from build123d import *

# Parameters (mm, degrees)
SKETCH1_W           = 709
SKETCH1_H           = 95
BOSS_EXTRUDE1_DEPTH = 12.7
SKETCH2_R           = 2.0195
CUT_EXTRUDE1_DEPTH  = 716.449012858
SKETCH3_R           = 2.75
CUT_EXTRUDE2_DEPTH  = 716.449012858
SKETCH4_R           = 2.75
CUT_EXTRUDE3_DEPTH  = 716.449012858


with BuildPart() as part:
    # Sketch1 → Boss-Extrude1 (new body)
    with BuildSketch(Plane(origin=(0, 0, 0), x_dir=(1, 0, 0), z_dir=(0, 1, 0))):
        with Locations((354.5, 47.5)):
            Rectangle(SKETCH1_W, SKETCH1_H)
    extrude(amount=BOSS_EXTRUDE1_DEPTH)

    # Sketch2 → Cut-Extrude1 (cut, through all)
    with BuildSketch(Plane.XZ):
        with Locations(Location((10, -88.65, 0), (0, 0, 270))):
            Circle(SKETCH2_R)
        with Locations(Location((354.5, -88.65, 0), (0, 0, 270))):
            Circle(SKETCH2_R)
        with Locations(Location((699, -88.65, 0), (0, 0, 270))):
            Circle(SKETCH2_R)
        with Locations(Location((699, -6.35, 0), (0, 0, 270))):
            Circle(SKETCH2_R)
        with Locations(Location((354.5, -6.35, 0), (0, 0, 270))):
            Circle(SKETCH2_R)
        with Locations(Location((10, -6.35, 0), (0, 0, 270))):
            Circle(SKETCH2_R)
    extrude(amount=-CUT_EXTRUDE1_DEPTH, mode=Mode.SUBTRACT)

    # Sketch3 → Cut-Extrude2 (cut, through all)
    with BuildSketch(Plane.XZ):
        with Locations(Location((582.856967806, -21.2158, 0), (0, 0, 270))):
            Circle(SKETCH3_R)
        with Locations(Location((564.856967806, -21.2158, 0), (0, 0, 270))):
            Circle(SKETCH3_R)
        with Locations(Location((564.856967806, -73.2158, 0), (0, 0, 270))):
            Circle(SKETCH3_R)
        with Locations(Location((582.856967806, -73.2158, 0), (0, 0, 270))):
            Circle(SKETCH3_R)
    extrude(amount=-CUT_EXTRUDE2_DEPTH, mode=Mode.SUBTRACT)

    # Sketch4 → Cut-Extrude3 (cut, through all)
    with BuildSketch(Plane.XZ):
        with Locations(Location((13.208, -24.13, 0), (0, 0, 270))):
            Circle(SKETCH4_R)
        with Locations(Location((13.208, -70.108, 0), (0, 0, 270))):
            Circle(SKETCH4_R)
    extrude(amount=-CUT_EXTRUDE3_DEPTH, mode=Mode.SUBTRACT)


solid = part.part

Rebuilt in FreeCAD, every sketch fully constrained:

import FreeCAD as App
import Part
import Sketcher

V = App.Vector

doc = App.newDocument("Part")
body = doc.addObject("PartDesign::Body", "Body")

sketch1 = body.newObject("Sketcher::SketchObject", "Sketch")
sketch1.AttachmentSupport = (doc.getObject("XZ_Plane"), [""])
sketch1.MapMode = "FlatFace"
sketch1.addGeometry([
    Part.LineSegment(V(0, -95, 0), V(0, 0, 0)),
    Part.LineSegment(V(0, 0, 0), V(709, 0, 0)),
    Part.LineSegment(V(709, 0, 0), V(709, -95, 0)),
    Part.LineSegment(V(709, -95, 0), V(0, -95, 0)),
], False)
sketch1.addConstraint([
    Sketcher.Constraint("Coincident", 0, 2, 1, 1),
    Sketcher.Constraint("Coincident", 1, 2, 2, 1),
    Sketcher.Constraint("Coincident", 2, 2, 3, 1),
    Sketcher.Constraint("Coincident", 3, 2, 0, 1),
    Sketcher.Constraint("Vertical", 0),
    Sketcher.Constraint("Horizontal", 1),
    Sketcher.Constraint("Vertical", 2),
    Sketcher.Constraint("Horizontal", 3),
    Sketcher.Constraint("Coincident", 0, 2, -1, 1),
    Sketcher.Constraint("DistanceX", 1, 1, 1, 2, 709.0),
    Sketcher.Constraint("DistanceY", 0, 1, 0, 2, 95.0),
])
pad1 = body.newObject("PartDesign::Pad", "Pad")
pad1.Profile = sketch1
pad1.Length = 12.7
pad1.Reversed = True

sketch2 = body.newObject("Sketcher::SketchObject", "Sketch001")
sketch2.AttachmentSupport = (doc.getObject("XZ_Plane"), [""])
sketch2.MapMode = "FlatFace"
sketch2.addGeometry([
    Part.Circle(V(10, -88.7, 0), V(0, 0, 1), 2),
    Part.Circle(V(354.5, -88.7, 0), V(0, 0, 1), 2),
    Part.Circle(V(699, -88.7, 0), V(0, 0, 1), 2),
    Part.Circle(V(699, -6.3, 0), V(0, 0, 1), 2),
    Part.Circle(V(354.5, -6.3, 0), V(0, 0, 1), 2),
    Part.Circle(V(10, -6.3, 0), V(0, 0, 1), 2),
], False)
sketch2.addConstraint([
    Sketcher.Constraint("Equal", 0, 1),
    Sketcher.Constraint("Equal", 1, 2),
    Sketcher.Constraint("Equal", 2, 3),
    Sketcher.Constraint("Equal", 3, 4),
    Sketcher.Constraint("Equal", 4, 5),
    Sketcher.Constraint("Horizontal", 0, 3, 1, 3),
    Sketcher.Constraint("Horizontal", 1, 3, 2, 3),
    Sketcher.Constraint("Horizontal", 3, 3, 4, 3),
    Sketcher.Constraint("Horizontal", 4, 3, 5, 3),
    Sketcher.Constraint("Vertical", 2, 3, 3, 3),
    Sketcher.Constraint("Vertical", 1, 3, 4, 3),
    Sketcher.Constraint("Vertical", 0, 3, 5, 3),
    Sketcher.Constraint("Diameter", 0, 4.039),
    Sketcher.Constraint("DistanceX", -1, 1, 0, 3, 10.0),
    Sketcher.Constraint("DistanceX", -1, 1, 2, 3, 699.0),
    Sketcher.Constraint("DistanceX", -1, 1, 1, 3, 354.5),
    Sketcher.Constraint("DistanceY", 2, 3, 3, 3, 82.3),
    Sketcher.Constraint("DistanceY", 0, 3, -1, 1, 88.65),
])
pocket1 = body.newObject("PartDesign::Pocket", "Pocket")
pocket1.Profile = sketch2
pocket1.Type = "ThroughAll"

sketch3 = body.newObject("Sketcher::SketchObject", "Sketch002")
sketch3.AttachmentSupport = (doc.getObject("XZ_Plane"), [""])
sketch3.MapMode = "FlatFace"
sketch3.addGeometry([
    Part.Circle(V(582.9, -21.2, 0), V(0, 0, 1), 2.8),
    Part.Circle(V(564.9, -21.2, 0), V(0, 0, 1), 2.8),
    Part.Circle(V(564.9, -73.2, 0), V(0, 0, 1), 2.8),
    Part.Circle(V(582.9, -73.2, 0), V(0, 0, 1), 2.8),
], False)
sketch3.addConstraint([
    Sketcher.Constraint("Equal", 0, 1),
    Sketcher.Constraint("Equal", 1, 2),
    Sketcher.Constraint("Equal", 2, 3),
    Sketcher.Constraint("Horizontal", 0, 3, 1, 3),
    Sketcher.Constraint("Horizontal", 2, 3, 3, 3),
    Sketcher.Constraint("Vertical", 1, 3, 2, 3),
    Sketcher.Constraint("Vertical", 0, 3, 3, 3),
    Sketcher.Constraint("Diameter", 0, 5.5),
    Sketcher.Constraint("DistanceX", 1, 3, 0, 3, 18.0),
    Sketcher.Constraint("DistanceY", 2, 3, 1, 3, 52.0),
    Sketcher.Constraint("DistanceY", 0, 3, -1, 1, 21.2158),
    Sketcher.Constraint("DistanceX", -1, 1, 0, 3, 582.856968),
])
pocket2 = body.newObject("PartDesign::Pocket", "Pocket001")
pocket2.Profile = sketch3
pocket2.Type = "ThroughAll"

sketch4 = body.newObject("Sketcher::SketchObject", "Sketch003")
sketch4.AttachmentSupport = (doc.getObject("XZ_Plane"), [""])
sketch4.MapMode = "FlatFace"
sketch4.addGeometry([
    Part.Circle(V(13.2, -24.1, 0), V(0, 0, 1), 2.8),
    Part.Circle(V(13.2, -70.1, 0), V(0, 0, 1), 2.8),
], False)
sketch4.addConstraint([
    Sketcher.Constraint("Equal", 0, 1),
    Sketcher.Constraint("Vertical", 0, 3, 1, 3),
    Sketcher.Constraint("Diameter", 0, 5.5),
    Sketcher.Constraint("DistanceY", 0, 3, -1, 1, 24.13),
    Sketcher.Constraint("DistanceX", -1, 1, 0, 3, 13.208),
    Sketcher.Constraint("DistanceY", 1, 3, -1, 1, 70.108),
])
pocket3 = body.newObject("PartDesign::Pocket", "Pocket002")
pocket3.Profile = sketch4
pocket3.Type = "ThroughAll"

doc.recompute()
